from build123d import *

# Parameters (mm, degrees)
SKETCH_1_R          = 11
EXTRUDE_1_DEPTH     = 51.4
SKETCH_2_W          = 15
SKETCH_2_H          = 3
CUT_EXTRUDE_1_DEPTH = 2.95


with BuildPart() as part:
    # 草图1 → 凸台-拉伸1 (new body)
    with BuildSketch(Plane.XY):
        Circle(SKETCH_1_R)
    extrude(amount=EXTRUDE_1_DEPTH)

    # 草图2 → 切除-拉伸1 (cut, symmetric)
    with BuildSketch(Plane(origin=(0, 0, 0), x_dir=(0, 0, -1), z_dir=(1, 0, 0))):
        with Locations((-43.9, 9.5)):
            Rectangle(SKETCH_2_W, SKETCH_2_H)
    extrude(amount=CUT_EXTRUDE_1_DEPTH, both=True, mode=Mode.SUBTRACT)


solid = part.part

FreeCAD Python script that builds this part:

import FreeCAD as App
import Part
import Sketcher
Q = App.Units.Quantity

doc = App.newDocument("Part")
params = doc.addObject("Spreadsheet::Sheet", "Params")
for row, (alias, value) in enumerate([
    ("sketch1_diameter", "22 mm"),
    ("pad1_length", "51.4 mm"),
    ("sketch2_width", "3 mm"),
    ("sketch2_height", "15 mm"),
    ("pocket1_length", "5.9 mm"),
], start=1):
    params.set(f"A{row}", alias)
    params.set(f"B{row}", "=" + value)
    params.setAlias(f"B{row}", alias)

body = doc.addObject("PartDesign::Body", "Body")

# Sketch on XY plane
sketch1 = body.newObject("Sketcher::SketchObject", "Sketch")
sketch1.AttachmentSupport = (doc.getObject("XY_Plane"), [""])
sketch1.MapMode = "FlatFace"
sketch1.addGeometry(Part.Circle(App.Vector(0, 0, 0), App.Vector(0, 0, 1), 11), False)
sketch1.addConstraint([
    Sketcher.Constraint("Coincident", 0, 3, -1, 1),
    Sketcher.Constraint("Diameter", 0, Q("22 mm")),
])
sketch1.setExpression("Constraints[1]", "Params.sketch1_diameter")
pad1 = body.newObject("PartDesign::Pad", "Pad")
pad1.Profile = sketch1
pad1.setExpression("Length", "Params.pad1_length")

# Sketch on YZ plane
sketch2 = body.newObject("Sketcher::SketchObject", "Sketch001")
sketch2.AttachmentSupport = (doc.getObject("YZ_Plane"), [""])
sketch2.MapMode = "FlatFace"
sketch2.addGeometry([
    Part.LineSegment(App.Vector(11, 51.4, 0), App.Vector(8, 51.4, 0)),
    Part.LineSegment(App.Vector(8, 51.4, 0), App.Vector(8, 36.4, 0)),
    Part.LineSegment(App.Vector(8, 36.4, 0), App.Vector(11, 36.4, 0)),
    Part.LineSegment(App.Vector(11, 36.4, 0), App.Vector(11, 51.4, 0)),
], False)
sketch2.addConstraint([
    Sketcher.Constraint("Coincident", 0, 2, 1, 1),
    Sketcher.Constraint("Coincident", 1, 2, 2, 1),
    Sketcher.Constraint("Coincident", 2, 2, 3, 1),
    Sketcher.Constraint("Coincident", 3, 2, 0, 1),
    Sketcher.Constraint("Horizontal", 0),
    Sketcher.Constraint("Vertical", 1),
    Sketcher.Constraint("Horizontal", 2),
    Sketcher.Constraint("Vertical", 3),
    Sketcher.Constraint("DistanceX", 0, 2, 0, 1, Q("3 mm")),
    Sketcher.Constraint("DistanceY", 1, 2, 1, 1, Q("15 mm")),
    Sketcher.Constraint("DistanceX", -1, 1, 0, 2, Q("8 mm")),
    Sketcher.Constraint("DistanceY", -1, 1, 0, 2, Q("51.4 mm")),
])
sketch2.setExpression("Constraints[8]", "Params.sketch2_width")
sketch2.setExpression("Constraints[9]", "Params.sketch2_height")
pocket1 = body.newObject("PartDesign::Pocket", "Pocket")
pocket1.Profile = sketch2
pocket1.setExpression("Length", "Params.pocket1_length")
pocket1.Midplane = True

doc.recompute()
